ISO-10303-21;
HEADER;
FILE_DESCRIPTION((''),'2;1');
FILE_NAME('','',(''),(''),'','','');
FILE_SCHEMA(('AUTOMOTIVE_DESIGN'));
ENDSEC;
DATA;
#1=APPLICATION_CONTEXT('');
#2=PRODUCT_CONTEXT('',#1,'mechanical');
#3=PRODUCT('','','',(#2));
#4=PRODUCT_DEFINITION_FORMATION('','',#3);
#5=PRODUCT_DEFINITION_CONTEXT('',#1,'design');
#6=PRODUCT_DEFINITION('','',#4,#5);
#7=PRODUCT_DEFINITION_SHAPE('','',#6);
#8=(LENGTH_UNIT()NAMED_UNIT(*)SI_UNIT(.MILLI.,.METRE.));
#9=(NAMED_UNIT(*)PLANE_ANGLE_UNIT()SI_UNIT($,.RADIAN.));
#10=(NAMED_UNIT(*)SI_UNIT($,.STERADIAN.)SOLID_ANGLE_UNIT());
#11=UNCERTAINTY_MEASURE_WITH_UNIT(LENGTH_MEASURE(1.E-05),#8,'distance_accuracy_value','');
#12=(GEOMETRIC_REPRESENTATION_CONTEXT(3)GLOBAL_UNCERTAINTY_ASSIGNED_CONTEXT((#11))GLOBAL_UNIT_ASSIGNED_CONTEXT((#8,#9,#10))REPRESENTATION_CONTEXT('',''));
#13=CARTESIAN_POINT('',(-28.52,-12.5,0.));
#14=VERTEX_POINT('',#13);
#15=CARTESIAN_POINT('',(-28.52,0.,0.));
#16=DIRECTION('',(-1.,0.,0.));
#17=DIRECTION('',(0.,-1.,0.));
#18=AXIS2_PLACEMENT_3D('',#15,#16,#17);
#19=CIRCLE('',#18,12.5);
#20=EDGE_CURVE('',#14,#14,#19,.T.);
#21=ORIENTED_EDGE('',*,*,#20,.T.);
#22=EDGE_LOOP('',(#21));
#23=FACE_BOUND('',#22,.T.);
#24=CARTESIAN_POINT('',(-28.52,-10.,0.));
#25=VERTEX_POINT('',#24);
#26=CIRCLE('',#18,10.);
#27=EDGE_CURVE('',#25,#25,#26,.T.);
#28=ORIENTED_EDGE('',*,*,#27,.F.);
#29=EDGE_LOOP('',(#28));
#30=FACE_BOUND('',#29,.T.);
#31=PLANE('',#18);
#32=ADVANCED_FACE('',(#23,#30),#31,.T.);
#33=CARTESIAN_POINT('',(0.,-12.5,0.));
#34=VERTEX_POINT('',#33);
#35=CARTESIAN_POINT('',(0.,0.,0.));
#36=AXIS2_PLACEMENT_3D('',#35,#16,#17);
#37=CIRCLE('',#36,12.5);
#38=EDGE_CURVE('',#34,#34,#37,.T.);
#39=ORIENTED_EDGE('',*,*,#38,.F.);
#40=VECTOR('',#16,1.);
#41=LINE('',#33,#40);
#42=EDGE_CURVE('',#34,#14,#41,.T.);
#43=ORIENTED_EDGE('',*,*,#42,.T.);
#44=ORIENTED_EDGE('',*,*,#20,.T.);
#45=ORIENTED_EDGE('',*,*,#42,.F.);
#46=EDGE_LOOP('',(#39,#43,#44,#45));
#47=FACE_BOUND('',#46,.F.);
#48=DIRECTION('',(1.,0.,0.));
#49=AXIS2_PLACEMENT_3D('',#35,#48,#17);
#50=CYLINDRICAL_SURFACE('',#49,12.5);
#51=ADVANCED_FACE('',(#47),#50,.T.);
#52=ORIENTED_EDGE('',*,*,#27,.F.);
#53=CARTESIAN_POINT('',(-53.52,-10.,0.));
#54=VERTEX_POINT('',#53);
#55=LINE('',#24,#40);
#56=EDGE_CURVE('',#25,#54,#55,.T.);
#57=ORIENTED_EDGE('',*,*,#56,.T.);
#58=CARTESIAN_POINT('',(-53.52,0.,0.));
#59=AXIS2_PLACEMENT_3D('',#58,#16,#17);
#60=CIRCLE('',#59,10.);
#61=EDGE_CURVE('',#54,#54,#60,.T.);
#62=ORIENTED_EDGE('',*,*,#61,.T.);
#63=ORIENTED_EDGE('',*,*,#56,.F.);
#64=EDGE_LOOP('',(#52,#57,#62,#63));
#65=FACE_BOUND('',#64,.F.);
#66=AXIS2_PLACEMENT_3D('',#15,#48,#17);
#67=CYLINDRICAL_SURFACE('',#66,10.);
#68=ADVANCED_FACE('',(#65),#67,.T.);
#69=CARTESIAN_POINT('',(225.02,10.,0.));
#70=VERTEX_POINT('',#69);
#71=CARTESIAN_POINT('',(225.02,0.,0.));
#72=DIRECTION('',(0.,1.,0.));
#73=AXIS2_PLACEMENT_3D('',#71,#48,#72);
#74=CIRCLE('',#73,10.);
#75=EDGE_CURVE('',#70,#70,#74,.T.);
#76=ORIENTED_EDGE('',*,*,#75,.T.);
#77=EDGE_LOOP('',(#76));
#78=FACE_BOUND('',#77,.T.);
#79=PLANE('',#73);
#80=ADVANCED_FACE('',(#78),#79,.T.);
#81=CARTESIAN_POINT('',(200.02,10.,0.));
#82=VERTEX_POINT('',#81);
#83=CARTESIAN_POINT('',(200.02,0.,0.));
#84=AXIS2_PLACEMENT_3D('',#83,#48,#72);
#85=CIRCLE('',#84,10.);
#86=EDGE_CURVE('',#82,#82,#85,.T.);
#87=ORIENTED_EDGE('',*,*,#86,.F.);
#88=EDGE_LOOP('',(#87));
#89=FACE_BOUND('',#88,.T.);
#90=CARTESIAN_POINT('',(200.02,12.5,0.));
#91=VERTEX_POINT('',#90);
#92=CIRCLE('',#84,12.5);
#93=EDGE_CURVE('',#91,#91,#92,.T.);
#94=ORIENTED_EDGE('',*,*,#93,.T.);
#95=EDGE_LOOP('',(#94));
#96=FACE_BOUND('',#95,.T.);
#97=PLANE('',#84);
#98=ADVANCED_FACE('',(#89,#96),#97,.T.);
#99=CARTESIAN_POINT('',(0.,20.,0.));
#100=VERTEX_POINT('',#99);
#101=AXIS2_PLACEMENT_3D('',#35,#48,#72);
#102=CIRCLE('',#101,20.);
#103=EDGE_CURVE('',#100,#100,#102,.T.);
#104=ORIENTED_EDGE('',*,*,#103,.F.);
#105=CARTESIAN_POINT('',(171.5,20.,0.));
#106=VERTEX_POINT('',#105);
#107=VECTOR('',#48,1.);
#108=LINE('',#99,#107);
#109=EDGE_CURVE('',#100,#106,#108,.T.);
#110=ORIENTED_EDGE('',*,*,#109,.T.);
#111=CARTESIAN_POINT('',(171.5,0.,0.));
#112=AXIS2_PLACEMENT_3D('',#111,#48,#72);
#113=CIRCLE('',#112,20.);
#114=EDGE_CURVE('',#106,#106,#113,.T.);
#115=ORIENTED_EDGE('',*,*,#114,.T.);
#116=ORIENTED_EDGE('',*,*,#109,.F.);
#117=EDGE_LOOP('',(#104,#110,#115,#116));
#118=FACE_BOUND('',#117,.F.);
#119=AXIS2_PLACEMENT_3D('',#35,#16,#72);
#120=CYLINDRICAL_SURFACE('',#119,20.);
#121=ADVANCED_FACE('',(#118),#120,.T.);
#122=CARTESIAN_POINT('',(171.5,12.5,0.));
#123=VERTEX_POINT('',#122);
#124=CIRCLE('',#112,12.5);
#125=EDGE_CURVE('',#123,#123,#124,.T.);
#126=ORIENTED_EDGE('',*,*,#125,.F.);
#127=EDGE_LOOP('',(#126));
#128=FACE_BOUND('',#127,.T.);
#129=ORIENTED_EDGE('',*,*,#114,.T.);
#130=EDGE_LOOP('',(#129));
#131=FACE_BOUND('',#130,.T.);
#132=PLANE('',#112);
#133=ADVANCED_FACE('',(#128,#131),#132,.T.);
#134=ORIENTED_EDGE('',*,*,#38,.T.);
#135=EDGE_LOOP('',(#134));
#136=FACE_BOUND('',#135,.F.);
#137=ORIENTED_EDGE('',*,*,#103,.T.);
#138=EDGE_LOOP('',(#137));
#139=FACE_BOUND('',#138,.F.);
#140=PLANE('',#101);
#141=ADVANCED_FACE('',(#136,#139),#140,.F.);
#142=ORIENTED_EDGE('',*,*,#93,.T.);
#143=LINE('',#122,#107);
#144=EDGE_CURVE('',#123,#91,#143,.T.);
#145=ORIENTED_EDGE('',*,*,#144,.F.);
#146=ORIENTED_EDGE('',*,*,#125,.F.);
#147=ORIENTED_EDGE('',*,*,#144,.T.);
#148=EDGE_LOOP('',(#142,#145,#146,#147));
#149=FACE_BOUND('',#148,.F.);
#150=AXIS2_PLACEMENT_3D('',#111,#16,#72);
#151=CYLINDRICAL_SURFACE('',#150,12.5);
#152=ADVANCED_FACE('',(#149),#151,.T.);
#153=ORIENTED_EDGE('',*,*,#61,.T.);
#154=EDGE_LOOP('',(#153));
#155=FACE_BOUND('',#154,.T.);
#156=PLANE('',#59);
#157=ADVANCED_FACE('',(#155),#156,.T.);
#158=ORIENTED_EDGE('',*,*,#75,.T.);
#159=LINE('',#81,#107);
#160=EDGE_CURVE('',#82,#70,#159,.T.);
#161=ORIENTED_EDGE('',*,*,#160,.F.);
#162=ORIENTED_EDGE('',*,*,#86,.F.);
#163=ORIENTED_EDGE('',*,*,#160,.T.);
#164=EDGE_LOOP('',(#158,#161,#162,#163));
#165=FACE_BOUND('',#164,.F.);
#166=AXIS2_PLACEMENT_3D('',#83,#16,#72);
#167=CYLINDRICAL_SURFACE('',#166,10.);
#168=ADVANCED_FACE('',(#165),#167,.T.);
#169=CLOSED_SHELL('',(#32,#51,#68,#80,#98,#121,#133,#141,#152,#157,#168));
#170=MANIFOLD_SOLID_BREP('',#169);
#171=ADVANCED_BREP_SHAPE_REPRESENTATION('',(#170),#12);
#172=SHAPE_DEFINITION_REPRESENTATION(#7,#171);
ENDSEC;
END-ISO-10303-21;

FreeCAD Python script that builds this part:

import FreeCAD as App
import Part
import Sketcher

V = App.Vector

doc = App.newDocument("Part")
params = doc.addObject("Spreadsheet::Sheet", "Params")
for row, (alias, value) in enumerate([
    ("sketch1_diameter", "40 mm"),
    ("pad1_length", "171.5 mm"),
    ("sketch2_diameter", "25 mm"),
    ("pad2_length", "28.52 mm"),
    ("sketch3_diameter", "25 mm"),
    ("pad3_length", "28.52 mm"),
    ("sketch4_diameter", "20 mm"),
    ("pad4_length", "25 mm"),
    ("sketch5_diameter", "20 mm"),
    ("pad5_length", "25 mm"),
], start=1):
    params.set(f"A{row}", alias)
    params.set(f"B{row}", "=" + value)
    params.setAlias(f"B{row}", alias)

body = doc.addObject("PartDesign::Body", "Body")

sketch1 = body.newObject("Sketcher::SketchObject", "Sketch")
sketch1.AttachmentSupport = (doc.getObject("YZ_Plane"), [""])
sketch1.MapMode = "FlatFace"
sketch1.addGeometry(Part.Circle(V(0, 0, 0), V(0, 0, 1), 20), False)
sketch1.addConstraint([
    Sketcher.Constraint("Coincident", 0, 3, -1, 1),
    Sketcher.Constraint("Diameter", 0, 40.0),
])
sketch1.setExpression("Constraints[1]", "Params.sketch1_diameter")
pad1 = body.newObject("PartDesign::Pad", "Pad")
pad1.Profile = sketch1
pad1.setExpression("Length", "Params.pad1_length")

sketch2 = body.newObject("Sketcher::SketchObject", "Sketch001")
sketch2.AttachmentSupport = (doc.getObject("YZ_Plane"), [""])
sketch2.MapMode = "FlatFace"
sketch2.addGeometry(Part.Circle(V(0, 0, 0), V(0, 0, 1), 12.5), False)
sketch2.addConstraint([
    Sketcher.Constraint("Coincident", 0, 3, -1, 1),
    Sketcher.Constraint("Diameter", 0, 25.0),
])
sketch2.setExpression("Constraints[1]", "Params.sketch2_diameter")
pad2 = body.newObject("PartDesign::Pad", "Pad001")
pad2.Profile = sketch2
pad2.setExpression("Length", "Params.pad2_length")
pad2.Reversed = True

sketch3 = body.newObject("Sketcher::SketchObject", "Sketch002")
sketch3.AttachmentSupport = (doc.getObject("YZ_Plane"), [""])
sketch3.MapMode = "FlatFace"
sketch3.AttachmentOffset = App.Placement(V(0, 0, 171.5), App.Rotation())
sketch3.addGeometry(Part.Circle(V(0, 0, 0), V(0, 0, 1), 12.5), False)
sketch3.addConstraint([
    Sketcher.Constraint("Coincident", 0, 3, -1, 1),
    Sketcher.Constraint("Diameter", 0, 25.0),
])
sketch3.setExpression("Constraints[1]", "Params.sketch3_diameter")
pad3 = body.newObject("PartDesign::Pad", "Pad002")
pad3.Profile = sketch3
pad3.setExpression("Length", "Params.pad3_length")

sketch4 = body.newObject("Sketcher::SketchObject", "Sketch003")
sketch4.AttachmentSupport = (doc.getObject("YZ_Plane"), [""])
sketch4.MapMode = "FlatFace"
sketch4.AttachmentOffset = App.Placement(V(0, 0, -28.52), App.Rotation())
sketch4.addGeometry(Part.Circle(V(0, 0, 0), V(0, 0, 1), 10), False)
sketch4.addConstraint([
    Sketcher.Constraint("Coincident", 0, 3, -1, 1),
    Sketcher.Constraint("Diameter", 0, 20.0),
])
sketch4.setExpression("Constraints[1]", "Params.sketch4_diameter")
pad4 = body.newObject("PartDesign::Pad", "Pad003")
pad4.Profile = sketch4
pad4.setExpression("Length", "Params.pad4_length")
pad4.Reversed = True

sketch5 = body.newObject("Sketcher::SketchObject", "Sketch004")
sketch5.AttachmentSupport = (doc.getObject("YZ_Plane"), [""])
sketch5.MapMode = "FlatFace"
sketch5.AttachmentOffset = App.Placement(V(0, 0, 200.02), App.Rotation())
sketch5.addGeometry(Part.Circle(V(0, 0, 0), V(0, 0, 1), 10), False)
sketch5.addConstraint([
    Sketcher.Constraint("Coincident", 0, 3, -1, 1),
    Sketcher.Constraint("Diameter", 0, 20.0),
])
sketch5.setExpression("Constraints[1]", "Params.sketch5_diameter")
pad5 = body.newObject("PartDesign::Pad", "Pad004")
pad5.Profile = sketch5
pad5.setExpression("Length", "Params.pad5_length")

doc.recompute()
